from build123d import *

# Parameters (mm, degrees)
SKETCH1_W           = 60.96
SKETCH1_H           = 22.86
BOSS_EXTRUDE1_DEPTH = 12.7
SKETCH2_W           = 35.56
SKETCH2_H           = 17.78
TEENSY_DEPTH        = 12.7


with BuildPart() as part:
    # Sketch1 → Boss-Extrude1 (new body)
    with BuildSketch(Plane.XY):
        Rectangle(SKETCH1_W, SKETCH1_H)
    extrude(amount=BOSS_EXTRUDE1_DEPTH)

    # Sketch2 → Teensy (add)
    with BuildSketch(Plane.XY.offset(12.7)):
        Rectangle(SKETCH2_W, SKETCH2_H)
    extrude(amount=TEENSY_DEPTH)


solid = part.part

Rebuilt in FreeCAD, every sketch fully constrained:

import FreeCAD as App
import Part
import Sketcher
from FreeCAD import Vector
Q = App.Units.Quantity

doc = App.newDocument("Part")
params = doc.addObject("Spreadsheet::Sheet", "Params")
for row, (alias, value) in enumerate([
    ("sketch1_width", "2.4 in"),
    ("sketch1_height", "0.9 in"),
    ("pad1_length", "0.5 in"),
    ("sketch2_width", "1.4 in"),
    ("sketch2_height", "0.7 in"),
    ("pad2_length", "0.5 in"),
], start=1):
    params.set(f"A{row}", alias)
    params.set(f"B{row}", "=" + value)
    params.setAlias(f"B{row}", alias)

body = doc.addObject("PartDesign::Body", "Body")

# Sketch on XY plane
sketch1 = doc.addObject("Sketcher::SketchObject", "Sketch")
body.addObject(sketch1)
sketch1.AttachmentSupport = (doc.XY_Plane, [""])
sketch1.MapMode = "FlatFace"
sketch1.addGeometry([
    Part.LineSegment(Vector(-30, 11, 0), Vector(-30, -11, 0)),
    Part.LineSegment(Vector(-30, -11, 0), Vector(30, -11, 0)),
    Part.LineSegment(Vector(30, -11, 0), Vector(30, 11, 0)),
    Part.LineSegment(Vector(30, 11, 0), Vector(-30, 11, 0)),
], False)
sketch1.addConstraint([
    Sketcher.Constraint("Coincident", 0, 2, 1, 1),
    Sketcher.Constraint("Coincident", 1, 2, 2, 1),
    Sketcher.Constraint("Coincident", 2, 2, 3, 1),
    Sketcher.Constraint("Coincident", 3, 2, 0, 1),
    Sketcher.Constraint("Vertical", 0),
    Sketcher.Constraint("Horizontal", 1),
    Sketcher.Constraint("Vertical", 2),
    Sketcher.Constraint("Horizontal", 3),
    Sketcher.Constraint("Symmetric", 0, 2, 2, 2, -1, 1),
    Sketcher.Constraint("DistanceX", 1, 1, 1, 2, Q("2.4 in")),
    Sketcher.Constraint("DistanceY", 0, 2, 0, 1, Q("0.9 in")),
])
sketch1.setExpression("Constraints[9]", "Params.sketch1_width")
sketch1.setExpression("Constraints[10]", "Params.sketch1_height")
pad1 = doc.addObject("PartDesign::Pad", "Pad")
body.addObject(pad1)
pad1.Profile = sketch1
pad1.setExpression("Length", "Params.pad1_length")

# Sketch on XY plane
sketch2 = doc.addObject("Sketcher::SketchObject", "Sketch001")
body.addObject(sketch2)
sketch2.AttachmentSupport = (doc.XY_Plane, [""])
sketch2.MapMode = "FlatFace"
sketch2.AttachmentOffset = App.Placement(Vector(0, 0, 0.5 * 25.4), App.Rotation())
sketch2.addGeometry([
    Part.LineSegment(Vector(-18, 9, 0), Vector(-18, -9, 0)),
    Part.LineSegment(Vector(-18, -9, 0), Vector(18, -9, 0)),
    Part.LineSegment(Vector(18, -9, 0), Vector(18, 9, 0)),
    Part.LineSegment(Vector(18, 9, 0), Vector(-18, 9, 0)),
], False)
sketch2.addConstraint([
    Sketcher.Constraint("Coincident", 0, 2, 1, 1),
    Sketcher.Constraint("Coincident", 1, 2, 2, 1),
    Sketcher.Constraint("Coincident", 2, 2, 3, 1),
    Sketcher.Constraint("Coincident", 3, 2, 0, 1),
    Sketcher.Constraint("Vertical", 0),
    Sketcher.Constraint("Horizontal", 1),
    Sketcher.Constraint("Vertical", 2),
    Sketcher.Constraint("Horizontal", 3),
    Sketcher.Constraint("Symmetric", 0, 2, 2, 2, -1, 1),
    Sketcher.Constraint("DistanceX", 1, 1, 1, 2, Q("1.4 in")),
    Sketcher.Constraint("DistanceY", 0, 2, 0, 1, Q("0.7 in")),
])
sketch2.setExpression("Constraints[9]", "Params.sketch2_width")
sketch2.setExpression("Constraints[10]", "Params.sketch2_height")
pad2 = doc.addObject("PartDesign::Pad", "Pad001")
body.addObject(pad2)
pad2.Profile = sketch2
pad2.setExpression("Length", "Params.pad2_length")

doc.recompute()
